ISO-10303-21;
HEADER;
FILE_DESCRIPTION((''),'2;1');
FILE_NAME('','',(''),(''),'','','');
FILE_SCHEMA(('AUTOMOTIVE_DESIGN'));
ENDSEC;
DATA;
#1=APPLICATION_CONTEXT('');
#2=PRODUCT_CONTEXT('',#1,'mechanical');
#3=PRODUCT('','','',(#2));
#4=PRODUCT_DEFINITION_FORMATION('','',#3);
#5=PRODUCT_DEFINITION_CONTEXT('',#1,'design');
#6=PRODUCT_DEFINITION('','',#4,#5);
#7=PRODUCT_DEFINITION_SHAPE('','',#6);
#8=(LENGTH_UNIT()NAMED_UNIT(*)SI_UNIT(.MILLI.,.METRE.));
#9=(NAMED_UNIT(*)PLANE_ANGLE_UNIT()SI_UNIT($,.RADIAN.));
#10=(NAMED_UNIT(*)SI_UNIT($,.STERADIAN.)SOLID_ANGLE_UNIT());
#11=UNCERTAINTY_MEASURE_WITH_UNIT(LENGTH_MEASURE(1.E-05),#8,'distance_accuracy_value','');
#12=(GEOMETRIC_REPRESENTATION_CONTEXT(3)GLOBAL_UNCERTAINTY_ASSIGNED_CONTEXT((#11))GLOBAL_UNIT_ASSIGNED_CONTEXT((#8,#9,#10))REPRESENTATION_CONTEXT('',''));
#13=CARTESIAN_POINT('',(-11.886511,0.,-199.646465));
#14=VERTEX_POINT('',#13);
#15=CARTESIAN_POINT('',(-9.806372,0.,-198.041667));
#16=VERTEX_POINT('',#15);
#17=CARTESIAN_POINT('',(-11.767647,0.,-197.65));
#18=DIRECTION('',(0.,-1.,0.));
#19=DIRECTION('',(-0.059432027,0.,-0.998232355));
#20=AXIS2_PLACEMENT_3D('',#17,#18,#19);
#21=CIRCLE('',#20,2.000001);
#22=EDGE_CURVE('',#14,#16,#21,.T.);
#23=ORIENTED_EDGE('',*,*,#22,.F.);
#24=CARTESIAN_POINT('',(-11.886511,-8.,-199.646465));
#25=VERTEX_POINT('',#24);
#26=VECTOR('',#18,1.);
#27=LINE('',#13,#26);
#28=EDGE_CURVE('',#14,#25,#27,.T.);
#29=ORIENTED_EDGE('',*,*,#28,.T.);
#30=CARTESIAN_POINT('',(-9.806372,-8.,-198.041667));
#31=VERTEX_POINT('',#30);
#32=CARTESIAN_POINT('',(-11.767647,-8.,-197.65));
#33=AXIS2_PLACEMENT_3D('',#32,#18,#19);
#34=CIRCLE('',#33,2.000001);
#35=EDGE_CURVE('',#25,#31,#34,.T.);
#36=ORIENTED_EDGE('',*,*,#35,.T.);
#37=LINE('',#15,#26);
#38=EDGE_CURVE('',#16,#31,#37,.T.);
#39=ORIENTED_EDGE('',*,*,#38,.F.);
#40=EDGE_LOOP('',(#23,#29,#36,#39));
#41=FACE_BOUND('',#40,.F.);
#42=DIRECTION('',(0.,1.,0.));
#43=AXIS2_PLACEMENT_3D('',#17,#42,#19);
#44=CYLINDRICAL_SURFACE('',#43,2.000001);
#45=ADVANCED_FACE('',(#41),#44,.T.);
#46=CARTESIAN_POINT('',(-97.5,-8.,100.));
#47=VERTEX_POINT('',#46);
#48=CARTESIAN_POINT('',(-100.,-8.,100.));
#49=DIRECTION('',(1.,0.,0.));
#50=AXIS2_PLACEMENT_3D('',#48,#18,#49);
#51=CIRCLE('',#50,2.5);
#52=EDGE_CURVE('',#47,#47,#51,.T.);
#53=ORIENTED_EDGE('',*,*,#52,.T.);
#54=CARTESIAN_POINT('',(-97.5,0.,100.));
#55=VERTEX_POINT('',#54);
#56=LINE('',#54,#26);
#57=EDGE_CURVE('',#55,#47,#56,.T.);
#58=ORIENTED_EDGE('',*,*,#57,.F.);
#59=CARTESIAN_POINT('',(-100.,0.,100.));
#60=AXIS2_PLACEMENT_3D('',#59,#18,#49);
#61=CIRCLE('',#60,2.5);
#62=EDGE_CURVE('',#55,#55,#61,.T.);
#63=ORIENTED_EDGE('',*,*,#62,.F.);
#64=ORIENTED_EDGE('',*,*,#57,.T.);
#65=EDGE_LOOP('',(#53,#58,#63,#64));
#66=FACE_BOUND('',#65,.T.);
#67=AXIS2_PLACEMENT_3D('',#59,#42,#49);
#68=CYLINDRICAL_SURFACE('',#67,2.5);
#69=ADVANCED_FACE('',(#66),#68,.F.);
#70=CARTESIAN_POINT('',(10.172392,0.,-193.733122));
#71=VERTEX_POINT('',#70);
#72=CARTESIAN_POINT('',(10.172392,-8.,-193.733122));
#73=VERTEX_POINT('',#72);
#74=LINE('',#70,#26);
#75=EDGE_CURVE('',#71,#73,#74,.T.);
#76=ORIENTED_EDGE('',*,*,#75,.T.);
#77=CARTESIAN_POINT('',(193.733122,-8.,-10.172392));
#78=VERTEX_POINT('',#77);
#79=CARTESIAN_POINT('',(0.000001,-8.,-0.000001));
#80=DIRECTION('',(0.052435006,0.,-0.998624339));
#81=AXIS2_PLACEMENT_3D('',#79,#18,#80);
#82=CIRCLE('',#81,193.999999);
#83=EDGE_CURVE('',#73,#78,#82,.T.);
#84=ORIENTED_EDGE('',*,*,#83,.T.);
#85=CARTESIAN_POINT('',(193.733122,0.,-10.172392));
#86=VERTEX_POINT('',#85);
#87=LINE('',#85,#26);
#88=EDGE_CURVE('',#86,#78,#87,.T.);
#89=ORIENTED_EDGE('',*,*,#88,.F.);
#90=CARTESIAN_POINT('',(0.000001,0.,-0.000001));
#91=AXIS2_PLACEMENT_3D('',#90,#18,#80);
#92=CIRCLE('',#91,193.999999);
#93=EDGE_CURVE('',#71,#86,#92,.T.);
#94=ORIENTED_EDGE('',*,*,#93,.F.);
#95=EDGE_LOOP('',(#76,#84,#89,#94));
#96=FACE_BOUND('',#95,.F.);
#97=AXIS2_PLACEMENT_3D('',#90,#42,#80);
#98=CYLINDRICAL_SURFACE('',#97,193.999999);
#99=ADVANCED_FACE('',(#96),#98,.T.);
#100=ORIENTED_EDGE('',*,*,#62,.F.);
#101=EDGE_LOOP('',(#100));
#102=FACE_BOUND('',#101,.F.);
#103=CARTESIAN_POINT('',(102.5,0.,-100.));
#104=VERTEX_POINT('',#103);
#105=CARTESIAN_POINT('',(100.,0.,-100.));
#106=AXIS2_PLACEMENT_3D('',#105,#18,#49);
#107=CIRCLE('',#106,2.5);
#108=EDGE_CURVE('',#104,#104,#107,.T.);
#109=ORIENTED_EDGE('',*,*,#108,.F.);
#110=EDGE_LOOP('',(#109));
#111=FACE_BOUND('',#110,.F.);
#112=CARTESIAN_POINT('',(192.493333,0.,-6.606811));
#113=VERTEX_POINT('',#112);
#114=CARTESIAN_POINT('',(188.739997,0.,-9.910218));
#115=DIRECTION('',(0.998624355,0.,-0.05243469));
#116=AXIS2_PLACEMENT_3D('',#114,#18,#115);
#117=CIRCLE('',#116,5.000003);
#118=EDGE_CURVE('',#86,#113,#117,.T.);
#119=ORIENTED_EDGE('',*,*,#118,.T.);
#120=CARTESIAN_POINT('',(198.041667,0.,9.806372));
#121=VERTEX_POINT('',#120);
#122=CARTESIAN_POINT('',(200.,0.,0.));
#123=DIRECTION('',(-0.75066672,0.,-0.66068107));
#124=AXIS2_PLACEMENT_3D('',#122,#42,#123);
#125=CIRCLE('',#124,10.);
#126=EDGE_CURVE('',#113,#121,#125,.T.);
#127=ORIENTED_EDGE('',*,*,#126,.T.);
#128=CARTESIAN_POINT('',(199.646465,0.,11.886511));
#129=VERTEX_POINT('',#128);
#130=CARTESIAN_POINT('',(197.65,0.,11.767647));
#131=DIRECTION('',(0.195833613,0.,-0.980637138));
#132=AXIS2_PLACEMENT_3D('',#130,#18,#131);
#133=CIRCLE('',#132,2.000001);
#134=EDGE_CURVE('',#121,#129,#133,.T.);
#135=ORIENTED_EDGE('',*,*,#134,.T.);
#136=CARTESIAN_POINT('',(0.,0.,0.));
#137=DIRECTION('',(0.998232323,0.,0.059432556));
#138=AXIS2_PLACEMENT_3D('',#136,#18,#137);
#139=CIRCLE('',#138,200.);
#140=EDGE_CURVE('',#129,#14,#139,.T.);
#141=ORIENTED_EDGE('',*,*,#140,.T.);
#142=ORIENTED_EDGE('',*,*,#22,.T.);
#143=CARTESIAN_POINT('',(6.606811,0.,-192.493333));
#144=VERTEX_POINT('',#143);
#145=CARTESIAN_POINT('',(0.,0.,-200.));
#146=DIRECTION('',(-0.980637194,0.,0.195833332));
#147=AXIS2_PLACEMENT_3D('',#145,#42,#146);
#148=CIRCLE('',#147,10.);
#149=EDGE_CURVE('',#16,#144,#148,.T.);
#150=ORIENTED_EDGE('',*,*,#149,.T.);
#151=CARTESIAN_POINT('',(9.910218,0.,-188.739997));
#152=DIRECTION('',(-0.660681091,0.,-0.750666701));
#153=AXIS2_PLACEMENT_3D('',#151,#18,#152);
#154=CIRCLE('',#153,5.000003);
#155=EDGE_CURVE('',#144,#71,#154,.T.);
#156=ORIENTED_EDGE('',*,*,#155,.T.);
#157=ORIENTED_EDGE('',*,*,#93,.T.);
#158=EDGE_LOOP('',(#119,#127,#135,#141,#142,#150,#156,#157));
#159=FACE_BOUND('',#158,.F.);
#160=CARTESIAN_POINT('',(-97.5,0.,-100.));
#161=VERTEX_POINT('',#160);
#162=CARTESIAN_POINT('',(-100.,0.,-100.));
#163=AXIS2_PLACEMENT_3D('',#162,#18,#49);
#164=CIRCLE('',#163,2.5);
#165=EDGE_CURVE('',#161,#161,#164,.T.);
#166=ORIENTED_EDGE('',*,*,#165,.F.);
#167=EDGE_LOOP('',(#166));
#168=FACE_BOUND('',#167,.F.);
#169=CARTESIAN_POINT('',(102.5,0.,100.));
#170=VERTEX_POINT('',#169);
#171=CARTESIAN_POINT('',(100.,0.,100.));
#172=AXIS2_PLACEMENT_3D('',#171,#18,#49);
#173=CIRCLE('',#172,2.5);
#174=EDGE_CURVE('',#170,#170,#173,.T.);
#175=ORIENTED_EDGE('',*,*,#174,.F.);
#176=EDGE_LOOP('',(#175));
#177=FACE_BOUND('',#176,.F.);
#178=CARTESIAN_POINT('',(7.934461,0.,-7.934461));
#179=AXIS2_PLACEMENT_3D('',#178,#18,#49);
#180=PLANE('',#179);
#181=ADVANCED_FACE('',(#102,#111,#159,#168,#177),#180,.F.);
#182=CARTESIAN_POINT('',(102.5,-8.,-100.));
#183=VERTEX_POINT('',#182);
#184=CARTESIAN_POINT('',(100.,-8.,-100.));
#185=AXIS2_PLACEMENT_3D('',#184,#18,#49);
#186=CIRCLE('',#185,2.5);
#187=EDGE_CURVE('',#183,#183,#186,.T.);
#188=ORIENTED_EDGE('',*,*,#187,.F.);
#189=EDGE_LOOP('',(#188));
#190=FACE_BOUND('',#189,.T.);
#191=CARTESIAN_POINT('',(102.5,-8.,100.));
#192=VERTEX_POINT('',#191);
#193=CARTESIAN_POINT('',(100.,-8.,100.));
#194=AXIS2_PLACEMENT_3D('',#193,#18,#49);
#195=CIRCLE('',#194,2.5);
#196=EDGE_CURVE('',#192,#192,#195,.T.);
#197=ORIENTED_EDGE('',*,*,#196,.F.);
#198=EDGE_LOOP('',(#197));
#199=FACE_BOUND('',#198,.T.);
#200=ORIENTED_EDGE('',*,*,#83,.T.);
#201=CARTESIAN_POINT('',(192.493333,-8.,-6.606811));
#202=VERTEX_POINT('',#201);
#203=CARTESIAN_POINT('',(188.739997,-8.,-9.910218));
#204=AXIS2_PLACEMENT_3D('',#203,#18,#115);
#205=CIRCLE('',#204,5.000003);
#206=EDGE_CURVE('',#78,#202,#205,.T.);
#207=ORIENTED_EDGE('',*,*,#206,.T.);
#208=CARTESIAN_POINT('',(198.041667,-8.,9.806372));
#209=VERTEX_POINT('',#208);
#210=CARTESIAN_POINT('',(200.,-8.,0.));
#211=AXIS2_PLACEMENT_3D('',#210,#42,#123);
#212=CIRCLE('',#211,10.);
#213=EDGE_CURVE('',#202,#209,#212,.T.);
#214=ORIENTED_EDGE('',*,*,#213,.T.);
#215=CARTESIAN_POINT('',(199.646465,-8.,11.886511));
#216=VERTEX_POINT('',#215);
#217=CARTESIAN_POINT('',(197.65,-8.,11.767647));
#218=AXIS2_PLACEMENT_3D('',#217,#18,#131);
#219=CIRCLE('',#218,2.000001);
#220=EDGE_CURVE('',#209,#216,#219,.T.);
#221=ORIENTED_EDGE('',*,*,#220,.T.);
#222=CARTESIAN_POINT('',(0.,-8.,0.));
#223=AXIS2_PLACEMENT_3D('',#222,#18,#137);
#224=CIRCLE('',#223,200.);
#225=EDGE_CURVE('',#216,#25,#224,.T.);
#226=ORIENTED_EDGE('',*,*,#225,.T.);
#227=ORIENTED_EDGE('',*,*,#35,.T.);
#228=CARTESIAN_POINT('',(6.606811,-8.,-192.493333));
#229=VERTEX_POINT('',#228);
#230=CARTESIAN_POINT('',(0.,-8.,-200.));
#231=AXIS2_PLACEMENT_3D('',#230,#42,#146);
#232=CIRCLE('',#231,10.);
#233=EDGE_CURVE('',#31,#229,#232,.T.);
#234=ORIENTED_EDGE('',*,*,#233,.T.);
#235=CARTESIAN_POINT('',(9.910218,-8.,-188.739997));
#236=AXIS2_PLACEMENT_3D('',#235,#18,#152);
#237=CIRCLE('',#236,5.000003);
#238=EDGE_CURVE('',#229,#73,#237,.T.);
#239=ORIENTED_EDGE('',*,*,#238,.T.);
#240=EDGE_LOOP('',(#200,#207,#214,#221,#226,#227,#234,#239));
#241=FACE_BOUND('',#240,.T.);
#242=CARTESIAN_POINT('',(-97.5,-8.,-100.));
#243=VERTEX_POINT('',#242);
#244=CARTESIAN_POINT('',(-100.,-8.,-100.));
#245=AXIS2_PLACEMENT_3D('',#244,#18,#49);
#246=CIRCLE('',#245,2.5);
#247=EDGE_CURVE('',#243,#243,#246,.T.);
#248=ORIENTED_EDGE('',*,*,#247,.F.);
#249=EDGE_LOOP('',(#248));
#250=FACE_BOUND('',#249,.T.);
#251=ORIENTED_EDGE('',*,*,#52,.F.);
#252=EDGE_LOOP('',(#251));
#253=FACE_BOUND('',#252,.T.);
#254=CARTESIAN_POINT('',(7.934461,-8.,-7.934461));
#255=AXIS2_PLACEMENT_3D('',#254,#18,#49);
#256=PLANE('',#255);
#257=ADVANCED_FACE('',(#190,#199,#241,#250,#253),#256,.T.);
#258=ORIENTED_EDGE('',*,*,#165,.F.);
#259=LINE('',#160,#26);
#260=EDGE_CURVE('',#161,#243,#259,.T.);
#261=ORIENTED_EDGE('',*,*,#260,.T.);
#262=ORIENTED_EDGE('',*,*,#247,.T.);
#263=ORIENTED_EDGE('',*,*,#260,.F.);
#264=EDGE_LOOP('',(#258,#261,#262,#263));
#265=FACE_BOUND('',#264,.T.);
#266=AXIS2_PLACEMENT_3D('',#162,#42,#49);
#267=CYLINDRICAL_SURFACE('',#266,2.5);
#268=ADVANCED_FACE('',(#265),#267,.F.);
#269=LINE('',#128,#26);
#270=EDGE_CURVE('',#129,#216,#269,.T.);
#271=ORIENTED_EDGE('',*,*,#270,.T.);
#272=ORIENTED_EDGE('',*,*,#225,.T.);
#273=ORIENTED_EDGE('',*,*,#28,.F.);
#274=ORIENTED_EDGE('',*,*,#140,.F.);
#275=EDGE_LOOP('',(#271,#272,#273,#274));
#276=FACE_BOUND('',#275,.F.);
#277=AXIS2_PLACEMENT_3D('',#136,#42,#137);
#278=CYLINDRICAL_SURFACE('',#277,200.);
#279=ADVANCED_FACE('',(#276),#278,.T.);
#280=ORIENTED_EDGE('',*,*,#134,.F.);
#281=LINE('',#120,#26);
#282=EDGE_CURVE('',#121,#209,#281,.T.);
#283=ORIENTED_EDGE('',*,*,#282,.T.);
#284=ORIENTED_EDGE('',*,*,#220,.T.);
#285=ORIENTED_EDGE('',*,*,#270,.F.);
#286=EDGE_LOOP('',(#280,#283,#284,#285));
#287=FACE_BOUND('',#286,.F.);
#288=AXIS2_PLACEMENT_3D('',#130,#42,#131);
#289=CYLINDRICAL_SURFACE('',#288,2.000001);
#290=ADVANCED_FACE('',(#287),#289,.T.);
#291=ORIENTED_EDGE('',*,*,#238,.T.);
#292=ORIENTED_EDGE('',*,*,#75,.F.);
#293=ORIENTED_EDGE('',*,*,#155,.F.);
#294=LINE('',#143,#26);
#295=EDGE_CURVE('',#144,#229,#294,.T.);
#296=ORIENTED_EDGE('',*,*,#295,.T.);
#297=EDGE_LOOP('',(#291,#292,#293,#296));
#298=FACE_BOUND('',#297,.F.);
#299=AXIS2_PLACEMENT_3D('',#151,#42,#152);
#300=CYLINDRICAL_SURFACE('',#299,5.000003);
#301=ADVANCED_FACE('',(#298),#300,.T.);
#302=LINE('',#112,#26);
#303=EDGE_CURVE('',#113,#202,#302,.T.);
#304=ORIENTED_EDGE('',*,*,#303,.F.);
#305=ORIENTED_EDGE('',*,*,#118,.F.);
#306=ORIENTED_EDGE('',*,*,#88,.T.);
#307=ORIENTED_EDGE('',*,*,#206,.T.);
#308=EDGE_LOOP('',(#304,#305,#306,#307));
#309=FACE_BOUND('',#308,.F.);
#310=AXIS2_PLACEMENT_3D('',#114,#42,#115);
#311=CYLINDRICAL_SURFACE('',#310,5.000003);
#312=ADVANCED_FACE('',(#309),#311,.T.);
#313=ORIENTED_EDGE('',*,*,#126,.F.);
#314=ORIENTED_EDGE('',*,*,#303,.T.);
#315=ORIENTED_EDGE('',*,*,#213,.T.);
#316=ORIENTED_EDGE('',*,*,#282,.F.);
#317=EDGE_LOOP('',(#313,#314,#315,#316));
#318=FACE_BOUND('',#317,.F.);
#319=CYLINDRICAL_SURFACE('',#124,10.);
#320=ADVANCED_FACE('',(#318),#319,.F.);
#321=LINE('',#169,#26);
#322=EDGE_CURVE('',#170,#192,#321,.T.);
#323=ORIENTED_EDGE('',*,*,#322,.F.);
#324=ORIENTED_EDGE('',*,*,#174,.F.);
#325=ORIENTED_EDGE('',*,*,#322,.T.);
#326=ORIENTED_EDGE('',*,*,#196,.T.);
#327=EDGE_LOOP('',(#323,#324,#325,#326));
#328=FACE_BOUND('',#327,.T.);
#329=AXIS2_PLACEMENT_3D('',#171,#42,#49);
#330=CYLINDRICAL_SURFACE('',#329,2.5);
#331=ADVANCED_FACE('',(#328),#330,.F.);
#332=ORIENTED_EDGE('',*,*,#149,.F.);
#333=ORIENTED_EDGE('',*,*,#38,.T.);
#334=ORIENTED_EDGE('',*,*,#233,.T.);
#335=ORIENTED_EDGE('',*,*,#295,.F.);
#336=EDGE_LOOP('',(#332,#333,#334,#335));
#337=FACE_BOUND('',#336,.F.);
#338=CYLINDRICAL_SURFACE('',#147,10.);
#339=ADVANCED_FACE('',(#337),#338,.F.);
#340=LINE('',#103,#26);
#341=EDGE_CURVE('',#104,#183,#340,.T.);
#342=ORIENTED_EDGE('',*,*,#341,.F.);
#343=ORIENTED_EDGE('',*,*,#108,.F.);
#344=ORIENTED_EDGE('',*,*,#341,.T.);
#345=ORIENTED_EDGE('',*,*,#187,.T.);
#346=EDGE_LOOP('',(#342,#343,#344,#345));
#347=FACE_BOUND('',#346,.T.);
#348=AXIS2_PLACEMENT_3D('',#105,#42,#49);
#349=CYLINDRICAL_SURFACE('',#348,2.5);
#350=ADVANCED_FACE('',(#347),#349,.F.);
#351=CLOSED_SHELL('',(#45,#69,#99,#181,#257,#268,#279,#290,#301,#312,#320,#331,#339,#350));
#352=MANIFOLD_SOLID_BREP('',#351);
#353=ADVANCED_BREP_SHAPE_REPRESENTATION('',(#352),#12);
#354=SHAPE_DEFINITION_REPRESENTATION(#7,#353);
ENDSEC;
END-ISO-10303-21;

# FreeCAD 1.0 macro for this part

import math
import FreeCAD as App
import Part
import Sketcher
from FreeCAD import Vector

doc = App.newDocument("Part")
body = doc.addObject("PartDesign::Body", "Body")

# Sketch on XZ plane
sketch1 = body.newObject("Sketcher::SketchObject", "Sketch")
sketch1.AttachmentSupport = (doc.getObject("XZ_Plane"), [""])
sketch1.MapMode = "FlatFace"
sketch1.addGeometry([
    Part.ArcOfCircle(Part.Circle(Vector(197.6, 11.8, 0), Vector(0, 0, 1), 2), math.radians(-79), math.radians(3)),  # 0
    Part.ArcOfCircle(Part.Circle(Vector(0, 0, 0), Vector(0, 0, 1), 200), math.radians(3), math.radians(267)),  # 1
    Part.ArcOfCircle(Part.Circle(Vector(-11.8, -197.6, 0), Vector(0, 0, 1), 2), math.radians(-93), math.radians(-11)),  # 2
    Part.ArcOfCircle(Part.Circle(Vector(0, -200, 0), Vector(0, 0, 1), 10), math.radians(49), math.radians(169)),  # 3
    Part.ArcOfCircle(Part.Circle(Vector(9.9, -188.7, 0), Vector(0, 0, 1), 5), math.radians(-131), math.radians(-87)),  # 4
    Part.ArcOfCircle(Part.Circle(Vector(0, 0, 0), Vector(0, 0, 1), 194), math.radians(-87), math.radians(-3)),  # 5
    Part.ArcOfCircle(Part.Circle(Vector(188.7, -9.9, 0), Vector(0, 0, 1), 5), math.radians(-3), math.radians(41)),  # 6
    Part.ArcOfCircle(Part.Circle(Vector(200, 0, 0), Vector(0, 0, 1), 10), math.radians(101), math.radians(221)),  # 7
    Part.Circle(Vector(-100, -100, 0), Vector(0, 0, 1), 2.5),  # 8
    Part.Circle(Vector(100, -100, 0), Vector(0, 0, 1), 2.5),  # 9
    Part.Circle(Vector(-100, 100, 0), Vector(0, 0, 1), 2.5),  # 10
    Part.Circle(Vector(100, 100, 0), Vector(0, 0, 1), 2.5),  # 11
], False)
sketch1.addConstraint([
    Sketcher.Constraint("Tangent", 0, 2, 1, 1),
    Sketcher.Constraint("Tangent", 1, 2, 2, 1),
    Sketcher.Constraint("Tangent", 2, 2, 3, 2),
    Sketcher.Constraint("Tangent", 3, 1, 4, 1),
    Sketcher.Constraint("Tangent", 4, 2, 5, 1),
    Sketcher.Constraint("Tangent", 5, 2, 6, 1),
    Sketcher.Constraint("Tangent", 6, 2, 7, 2),
    Sketcher.Constraint("Tangent", 7, 1, 0, 1),
    Sketcher.Constraint("Coincident", 1, 3, -1, 1),
    Sketcher.Constraint("Coincident", 5, 3, -1, 1),
    Sketcher.Constraint("Equal", 0, 2),
    Sketcher.Constraint("Equal", 4, 6),
    Sketcher.Constraint("Equal", 3, 7),
    Sketcher.Constraint("Equal", 8, 9),
    Sketcher.Constraint("Equal", 9, 10),
    Sketcher.Constraint("Equal", 10, 11),
    Sketcher.Constraint("Symmetric", 9, 3, 10, 3, -1, 1),
    Sketcher.Constraint("Symmetric", 8, 3, 11, 3, -1, 1),
    Sketcher.Constraint("Symmetric", 8, 3, 9, 3, -2),
    Sketcher.Constraint("PointOnObject", 3, 3, -2),
    Sketcher.Constraint("PointOnObject", 7, 3, -1),
    Sketcher.Constraint("Diameter", 8, 5.0),
    Sketcher.Constraint("Radius", 0, 2.000001),
    Sketcher.Constraint("Radius", 1, 200.0),
    Sketcher.Constraint("Radius", 3, 10.0),
    Sketcher.Constraint("Radius", 5, 193.999999),
    Sketcher.Constraint("DistanceY", 3, 3, -1, 1, 200.0),
    Sketcher.Constraint("DistanceX", -1, 1, 7, 3, 200.0),
    Sketcher.Constraint("DistanceX", 8, 3, -1, 1, 100.0),
    Sketcher.Constraint("DistanceY", 8, 3, -1, 1, 100.0),
    Sketcher.Constraint("Radius", 4, 5.000003),
])
pad1 = body.newObject("PartDesign::Pad", "Pad")
pad1.Profile = sketch1
pad1.Length = 8

doc.recompute()
